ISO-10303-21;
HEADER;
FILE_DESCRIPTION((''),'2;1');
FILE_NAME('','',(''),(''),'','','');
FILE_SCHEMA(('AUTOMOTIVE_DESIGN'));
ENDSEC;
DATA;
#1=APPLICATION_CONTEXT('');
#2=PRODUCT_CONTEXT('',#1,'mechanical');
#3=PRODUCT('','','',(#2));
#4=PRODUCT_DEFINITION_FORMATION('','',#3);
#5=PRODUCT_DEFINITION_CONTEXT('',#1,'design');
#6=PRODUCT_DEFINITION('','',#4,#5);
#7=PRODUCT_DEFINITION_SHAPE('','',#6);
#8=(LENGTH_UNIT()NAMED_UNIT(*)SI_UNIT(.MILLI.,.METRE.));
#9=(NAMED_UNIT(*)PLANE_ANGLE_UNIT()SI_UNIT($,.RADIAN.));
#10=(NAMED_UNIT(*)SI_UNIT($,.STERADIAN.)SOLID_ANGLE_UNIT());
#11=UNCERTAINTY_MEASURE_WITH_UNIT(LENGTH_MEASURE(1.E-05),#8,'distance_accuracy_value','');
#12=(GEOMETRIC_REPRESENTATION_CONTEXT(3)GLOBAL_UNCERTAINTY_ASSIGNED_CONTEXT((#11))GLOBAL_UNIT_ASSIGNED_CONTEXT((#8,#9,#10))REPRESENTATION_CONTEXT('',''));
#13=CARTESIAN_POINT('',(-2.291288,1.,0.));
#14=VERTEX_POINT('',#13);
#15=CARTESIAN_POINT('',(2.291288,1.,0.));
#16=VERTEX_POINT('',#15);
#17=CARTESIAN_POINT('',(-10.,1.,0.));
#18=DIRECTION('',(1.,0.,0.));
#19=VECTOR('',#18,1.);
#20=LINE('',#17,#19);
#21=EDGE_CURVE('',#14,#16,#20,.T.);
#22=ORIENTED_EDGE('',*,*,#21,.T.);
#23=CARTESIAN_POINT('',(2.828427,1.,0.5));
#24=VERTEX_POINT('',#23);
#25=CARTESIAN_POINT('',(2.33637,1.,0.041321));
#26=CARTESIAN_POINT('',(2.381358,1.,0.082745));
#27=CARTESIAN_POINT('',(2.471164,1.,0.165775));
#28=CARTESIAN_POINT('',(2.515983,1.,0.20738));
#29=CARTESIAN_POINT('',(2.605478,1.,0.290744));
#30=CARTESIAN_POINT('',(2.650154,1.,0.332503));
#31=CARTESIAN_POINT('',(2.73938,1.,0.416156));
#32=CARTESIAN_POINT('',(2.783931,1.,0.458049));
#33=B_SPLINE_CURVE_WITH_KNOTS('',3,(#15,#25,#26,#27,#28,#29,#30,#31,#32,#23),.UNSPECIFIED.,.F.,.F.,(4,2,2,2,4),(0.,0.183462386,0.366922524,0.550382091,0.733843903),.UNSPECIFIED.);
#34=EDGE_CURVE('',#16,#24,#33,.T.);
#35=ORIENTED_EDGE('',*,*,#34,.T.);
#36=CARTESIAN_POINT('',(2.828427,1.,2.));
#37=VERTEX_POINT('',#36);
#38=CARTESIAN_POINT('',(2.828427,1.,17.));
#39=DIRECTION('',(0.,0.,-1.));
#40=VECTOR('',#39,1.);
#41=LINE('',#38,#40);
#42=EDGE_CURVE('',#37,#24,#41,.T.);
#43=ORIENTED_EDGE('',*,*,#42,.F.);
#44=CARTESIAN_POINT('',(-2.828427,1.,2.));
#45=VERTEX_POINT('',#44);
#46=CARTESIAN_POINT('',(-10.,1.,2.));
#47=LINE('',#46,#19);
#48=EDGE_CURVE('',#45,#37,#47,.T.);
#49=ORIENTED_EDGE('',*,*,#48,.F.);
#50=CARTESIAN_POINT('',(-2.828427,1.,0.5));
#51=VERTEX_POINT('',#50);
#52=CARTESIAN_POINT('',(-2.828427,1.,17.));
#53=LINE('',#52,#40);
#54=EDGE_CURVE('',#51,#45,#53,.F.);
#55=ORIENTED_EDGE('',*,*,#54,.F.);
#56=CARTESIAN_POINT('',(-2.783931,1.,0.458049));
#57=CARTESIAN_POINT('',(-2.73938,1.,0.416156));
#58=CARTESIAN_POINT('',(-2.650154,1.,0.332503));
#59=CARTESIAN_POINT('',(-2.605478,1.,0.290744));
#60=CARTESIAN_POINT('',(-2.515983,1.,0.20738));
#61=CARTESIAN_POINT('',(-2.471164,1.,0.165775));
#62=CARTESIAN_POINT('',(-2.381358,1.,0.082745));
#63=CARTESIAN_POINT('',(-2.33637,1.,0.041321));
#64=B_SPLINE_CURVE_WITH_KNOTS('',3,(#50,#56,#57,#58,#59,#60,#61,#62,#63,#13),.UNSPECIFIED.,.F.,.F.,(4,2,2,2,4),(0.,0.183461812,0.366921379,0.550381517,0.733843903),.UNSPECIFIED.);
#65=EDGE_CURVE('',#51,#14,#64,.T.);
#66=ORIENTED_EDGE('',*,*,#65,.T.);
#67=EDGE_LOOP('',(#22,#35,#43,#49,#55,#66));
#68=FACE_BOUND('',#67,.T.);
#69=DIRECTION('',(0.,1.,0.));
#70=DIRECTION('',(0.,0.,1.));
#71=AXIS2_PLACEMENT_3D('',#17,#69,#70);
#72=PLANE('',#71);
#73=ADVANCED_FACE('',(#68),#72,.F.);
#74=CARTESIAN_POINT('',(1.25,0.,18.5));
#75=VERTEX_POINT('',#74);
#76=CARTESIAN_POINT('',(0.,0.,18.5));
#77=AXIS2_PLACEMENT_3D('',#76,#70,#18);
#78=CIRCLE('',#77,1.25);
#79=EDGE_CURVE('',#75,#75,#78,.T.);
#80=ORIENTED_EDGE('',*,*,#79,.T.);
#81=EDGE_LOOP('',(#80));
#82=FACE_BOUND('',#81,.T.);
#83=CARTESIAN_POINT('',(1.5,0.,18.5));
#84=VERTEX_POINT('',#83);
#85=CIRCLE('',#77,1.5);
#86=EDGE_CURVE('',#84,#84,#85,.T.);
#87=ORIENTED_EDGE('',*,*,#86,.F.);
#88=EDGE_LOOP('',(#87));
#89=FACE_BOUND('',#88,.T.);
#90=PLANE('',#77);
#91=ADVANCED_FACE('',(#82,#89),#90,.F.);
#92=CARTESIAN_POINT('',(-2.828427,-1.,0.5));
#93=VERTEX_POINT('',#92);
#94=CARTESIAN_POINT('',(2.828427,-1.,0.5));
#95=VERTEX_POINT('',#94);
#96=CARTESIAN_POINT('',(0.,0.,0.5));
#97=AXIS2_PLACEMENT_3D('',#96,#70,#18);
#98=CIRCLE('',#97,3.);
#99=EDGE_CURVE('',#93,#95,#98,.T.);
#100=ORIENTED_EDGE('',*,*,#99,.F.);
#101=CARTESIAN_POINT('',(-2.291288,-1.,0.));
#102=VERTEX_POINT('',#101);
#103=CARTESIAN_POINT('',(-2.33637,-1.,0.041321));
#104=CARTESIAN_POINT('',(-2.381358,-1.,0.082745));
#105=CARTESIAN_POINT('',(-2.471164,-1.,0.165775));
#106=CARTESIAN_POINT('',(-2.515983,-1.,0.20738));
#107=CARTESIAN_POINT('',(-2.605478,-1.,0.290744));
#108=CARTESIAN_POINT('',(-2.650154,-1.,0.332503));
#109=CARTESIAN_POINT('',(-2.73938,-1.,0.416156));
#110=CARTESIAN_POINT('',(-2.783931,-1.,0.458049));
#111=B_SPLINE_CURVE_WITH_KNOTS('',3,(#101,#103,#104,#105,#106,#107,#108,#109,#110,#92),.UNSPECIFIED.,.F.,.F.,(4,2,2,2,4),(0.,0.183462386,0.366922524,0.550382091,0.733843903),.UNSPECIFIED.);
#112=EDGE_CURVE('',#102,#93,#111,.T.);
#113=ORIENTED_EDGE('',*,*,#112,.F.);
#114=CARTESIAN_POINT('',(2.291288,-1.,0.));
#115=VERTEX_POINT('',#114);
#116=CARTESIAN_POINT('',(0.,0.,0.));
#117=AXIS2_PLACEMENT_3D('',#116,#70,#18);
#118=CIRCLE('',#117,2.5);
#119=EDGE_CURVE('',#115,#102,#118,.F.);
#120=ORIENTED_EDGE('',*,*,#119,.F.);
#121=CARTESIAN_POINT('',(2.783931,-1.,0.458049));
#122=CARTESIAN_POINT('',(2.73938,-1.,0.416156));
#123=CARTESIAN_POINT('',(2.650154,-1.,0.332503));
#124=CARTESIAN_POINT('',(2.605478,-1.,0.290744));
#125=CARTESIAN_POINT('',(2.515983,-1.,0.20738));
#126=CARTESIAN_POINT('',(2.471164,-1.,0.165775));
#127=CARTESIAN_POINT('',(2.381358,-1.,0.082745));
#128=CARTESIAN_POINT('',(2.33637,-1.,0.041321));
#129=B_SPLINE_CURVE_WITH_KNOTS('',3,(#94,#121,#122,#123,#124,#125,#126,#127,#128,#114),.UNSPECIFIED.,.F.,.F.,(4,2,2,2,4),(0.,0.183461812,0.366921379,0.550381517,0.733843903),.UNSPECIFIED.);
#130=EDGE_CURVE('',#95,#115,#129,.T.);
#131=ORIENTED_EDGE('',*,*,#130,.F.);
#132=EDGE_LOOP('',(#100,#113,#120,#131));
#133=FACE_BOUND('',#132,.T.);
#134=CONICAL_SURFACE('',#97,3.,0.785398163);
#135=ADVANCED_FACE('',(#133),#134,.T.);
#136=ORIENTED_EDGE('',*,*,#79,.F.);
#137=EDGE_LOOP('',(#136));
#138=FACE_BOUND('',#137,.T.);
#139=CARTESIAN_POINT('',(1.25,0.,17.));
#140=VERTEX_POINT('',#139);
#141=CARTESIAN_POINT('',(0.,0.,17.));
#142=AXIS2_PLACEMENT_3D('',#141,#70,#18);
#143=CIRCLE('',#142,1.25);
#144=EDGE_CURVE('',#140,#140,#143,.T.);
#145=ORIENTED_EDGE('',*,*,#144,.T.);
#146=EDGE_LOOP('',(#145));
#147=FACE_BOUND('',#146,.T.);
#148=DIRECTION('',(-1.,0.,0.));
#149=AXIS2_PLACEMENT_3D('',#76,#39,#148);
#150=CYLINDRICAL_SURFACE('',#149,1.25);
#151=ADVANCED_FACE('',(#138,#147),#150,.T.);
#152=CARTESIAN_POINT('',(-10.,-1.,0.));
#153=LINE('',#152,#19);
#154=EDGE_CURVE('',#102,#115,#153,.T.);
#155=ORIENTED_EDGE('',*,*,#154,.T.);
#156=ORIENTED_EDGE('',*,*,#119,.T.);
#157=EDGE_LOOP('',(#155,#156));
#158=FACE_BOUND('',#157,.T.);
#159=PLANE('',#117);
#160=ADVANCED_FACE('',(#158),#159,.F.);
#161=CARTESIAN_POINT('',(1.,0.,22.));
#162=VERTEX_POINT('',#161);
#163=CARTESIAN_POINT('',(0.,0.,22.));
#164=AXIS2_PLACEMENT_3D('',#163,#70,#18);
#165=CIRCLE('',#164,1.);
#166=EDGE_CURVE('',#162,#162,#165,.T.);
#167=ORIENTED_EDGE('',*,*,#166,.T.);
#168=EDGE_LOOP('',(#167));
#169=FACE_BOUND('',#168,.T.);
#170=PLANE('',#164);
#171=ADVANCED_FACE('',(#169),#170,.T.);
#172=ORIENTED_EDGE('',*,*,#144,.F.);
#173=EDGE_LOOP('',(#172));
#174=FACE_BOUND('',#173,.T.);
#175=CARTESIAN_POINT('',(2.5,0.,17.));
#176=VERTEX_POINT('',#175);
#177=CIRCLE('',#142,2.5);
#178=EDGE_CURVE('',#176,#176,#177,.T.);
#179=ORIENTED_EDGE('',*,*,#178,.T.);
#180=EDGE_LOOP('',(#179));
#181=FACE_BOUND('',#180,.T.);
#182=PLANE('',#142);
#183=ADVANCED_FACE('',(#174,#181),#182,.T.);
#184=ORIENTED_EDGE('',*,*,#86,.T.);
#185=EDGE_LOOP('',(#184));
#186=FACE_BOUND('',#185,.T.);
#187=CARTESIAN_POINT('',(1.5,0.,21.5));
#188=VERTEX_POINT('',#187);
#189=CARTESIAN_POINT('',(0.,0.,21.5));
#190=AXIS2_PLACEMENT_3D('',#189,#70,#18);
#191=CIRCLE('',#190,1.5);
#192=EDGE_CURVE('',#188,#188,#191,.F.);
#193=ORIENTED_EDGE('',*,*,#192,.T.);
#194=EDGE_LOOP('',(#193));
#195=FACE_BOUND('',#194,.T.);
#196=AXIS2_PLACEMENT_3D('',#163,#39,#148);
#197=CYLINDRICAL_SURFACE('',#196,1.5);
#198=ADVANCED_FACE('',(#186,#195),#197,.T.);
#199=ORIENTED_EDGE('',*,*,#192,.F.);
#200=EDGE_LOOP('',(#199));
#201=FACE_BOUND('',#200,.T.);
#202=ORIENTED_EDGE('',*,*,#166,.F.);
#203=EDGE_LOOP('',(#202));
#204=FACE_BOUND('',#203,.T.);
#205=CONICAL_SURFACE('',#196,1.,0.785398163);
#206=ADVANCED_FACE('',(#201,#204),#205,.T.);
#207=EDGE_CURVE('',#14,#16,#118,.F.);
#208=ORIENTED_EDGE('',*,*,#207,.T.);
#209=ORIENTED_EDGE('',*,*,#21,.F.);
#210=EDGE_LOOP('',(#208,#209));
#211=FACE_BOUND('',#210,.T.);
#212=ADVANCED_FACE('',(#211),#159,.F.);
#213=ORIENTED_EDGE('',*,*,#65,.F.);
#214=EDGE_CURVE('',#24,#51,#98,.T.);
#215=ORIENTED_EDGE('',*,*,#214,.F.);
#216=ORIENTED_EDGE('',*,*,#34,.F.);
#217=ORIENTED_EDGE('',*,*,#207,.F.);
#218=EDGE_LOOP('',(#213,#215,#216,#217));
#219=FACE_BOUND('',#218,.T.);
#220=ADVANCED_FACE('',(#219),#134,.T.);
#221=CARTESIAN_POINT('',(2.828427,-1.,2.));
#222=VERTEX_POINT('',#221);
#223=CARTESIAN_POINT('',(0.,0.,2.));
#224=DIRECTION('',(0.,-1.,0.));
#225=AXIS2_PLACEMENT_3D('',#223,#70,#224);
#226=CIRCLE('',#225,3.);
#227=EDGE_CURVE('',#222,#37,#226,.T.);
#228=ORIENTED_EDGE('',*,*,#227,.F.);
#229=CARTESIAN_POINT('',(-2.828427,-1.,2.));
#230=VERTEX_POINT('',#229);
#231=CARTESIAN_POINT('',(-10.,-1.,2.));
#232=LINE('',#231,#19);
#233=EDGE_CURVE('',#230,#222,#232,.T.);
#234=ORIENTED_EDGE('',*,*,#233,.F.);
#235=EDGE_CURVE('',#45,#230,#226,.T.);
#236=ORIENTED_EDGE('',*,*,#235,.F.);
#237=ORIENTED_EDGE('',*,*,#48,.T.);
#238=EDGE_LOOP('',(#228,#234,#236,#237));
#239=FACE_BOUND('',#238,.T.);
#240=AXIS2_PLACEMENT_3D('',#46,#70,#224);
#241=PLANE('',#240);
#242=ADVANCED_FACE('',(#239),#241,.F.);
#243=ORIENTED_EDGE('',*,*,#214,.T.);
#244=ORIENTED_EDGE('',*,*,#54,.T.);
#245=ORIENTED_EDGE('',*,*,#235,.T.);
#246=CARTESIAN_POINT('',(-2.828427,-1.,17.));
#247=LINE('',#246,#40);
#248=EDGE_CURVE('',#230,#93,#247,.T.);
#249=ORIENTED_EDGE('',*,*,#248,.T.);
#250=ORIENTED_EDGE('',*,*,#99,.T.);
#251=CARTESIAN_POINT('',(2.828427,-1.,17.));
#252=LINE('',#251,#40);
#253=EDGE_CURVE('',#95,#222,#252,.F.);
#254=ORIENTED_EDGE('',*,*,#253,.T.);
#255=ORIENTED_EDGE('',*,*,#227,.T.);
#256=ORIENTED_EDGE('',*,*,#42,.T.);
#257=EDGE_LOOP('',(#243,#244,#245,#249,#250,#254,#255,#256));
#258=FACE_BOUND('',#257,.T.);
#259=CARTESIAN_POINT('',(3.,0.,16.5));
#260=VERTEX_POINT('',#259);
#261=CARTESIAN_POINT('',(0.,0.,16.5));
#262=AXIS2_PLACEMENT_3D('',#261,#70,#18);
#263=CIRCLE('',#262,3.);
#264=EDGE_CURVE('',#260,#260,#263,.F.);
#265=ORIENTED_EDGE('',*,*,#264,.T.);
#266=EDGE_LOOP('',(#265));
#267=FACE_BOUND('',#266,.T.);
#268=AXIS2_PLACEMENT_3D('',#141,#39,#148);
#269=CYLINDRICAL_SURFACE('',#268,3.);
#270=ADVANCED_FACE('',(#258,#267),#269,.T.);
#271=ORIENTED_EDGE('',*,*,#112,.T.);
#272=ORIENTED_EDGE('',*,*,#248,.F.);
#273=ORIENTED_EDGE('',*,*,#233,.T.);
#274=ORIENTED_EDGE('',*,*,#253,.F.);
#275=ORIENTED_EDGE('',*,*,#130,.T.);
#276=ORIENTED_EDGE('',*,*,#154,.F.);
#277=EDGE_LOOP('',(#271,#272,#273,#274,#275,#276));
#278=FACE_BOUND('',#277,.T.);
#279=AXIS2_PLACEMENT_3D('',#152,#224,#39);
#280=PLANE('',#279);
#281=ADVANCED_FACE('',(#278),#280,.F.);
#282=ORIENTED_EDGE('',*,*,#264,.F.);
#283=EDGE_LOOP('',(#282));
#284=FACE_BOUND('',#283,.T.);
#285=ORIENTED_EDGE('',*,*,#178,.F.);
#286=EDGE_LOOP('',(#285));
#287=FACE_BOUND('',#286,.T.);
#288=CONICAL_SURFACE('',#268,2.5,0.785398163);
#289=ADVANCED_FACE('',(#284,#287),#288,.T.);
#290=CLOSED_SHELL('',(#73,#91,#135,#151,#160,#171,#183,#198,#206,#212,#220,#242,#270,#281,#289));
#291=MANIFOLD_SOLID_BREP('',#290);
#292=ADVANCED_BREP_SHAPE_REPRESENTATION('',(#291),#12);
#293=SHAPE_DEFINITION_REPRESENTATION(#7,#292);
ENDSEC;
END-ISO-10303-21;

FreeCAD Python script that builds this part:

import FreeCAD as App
import Part
import Sketcher

V = App.Vector


def edges_at(feature, points):
    """Names of the edges that pass closest to the given points."""
    edges = feature.Shape.Edges
    near = lambda p: min(range(len(edges)), key=lambda i: edges[i].distToShape(Part.Vertex(*p))[0])
    return sorted({f"Edge{near(p) + 1}" for p in points})


def add_polygon(sketch, points):
    """Adds a closed chain of lines whose ends are joined by coincident constraints."""
    first, n = sketch.GeometryCount, len(points)
    for a, b in zip(points, points[1:] + points[:1]):
        sketch.addGeometry(Part.LineSegment(App.Vector(*a, 0), App.Vector(*b, 0)), False)
    for i in range(n):
        sketch.addConstraint(Sketcher.Constraint("Coincident", first + i, 2, first + (i + 1) % n, 1))

doc = App.newDocument("Part")
params = doc.addObject("Spreadsheet::Sheet", "Params")
for row, (alias, value) in enumerate([
    ("sketch1_diameter", "6 mm"),
    ("pad1_length", "17 mm"),
    ("sketch2_diameter", "3 mm"),
    ("pad2_length", "5 mm"),
    ("chamfer_size", "0.5 mm"),
    ("sketch3_diameter", "3 mm"),
    ("sketch3_diameter2", "2.5 mm"),
    ("pocket1_length", "1.5 mm"),
    ("sketch4_width", "2 mm"),
    ("pocket2_length", "20 mm"),
    ("chamfer2_size", "0.5 mm"),
], start=1):
    params.set(f"A{row}", alias)
    params.set(f"B{row}", "=" + value)
    params.setAlias(f"B{row}", alias)

body = doc.addObject("PartDesign::Body", "Body")

# Sketch on XY plane
sketch1 = body.newObject("Sketcher::SketchObject", "Sketch")
sketch1.AttachmentSupport = (doc.getObject("XY_Plane"), [""])
sketch1.MapMode = "FlatFace"
sketch1.addGeometry(Part.Circle(V(0, 0, 0), V(0, 0, 1), 3), False)
sketch1.addConstraint([
    Sketcher.Constraint("Coincident", 0, 3, -1, 1),
    Sketcher.Constraint("Diameter", 0, 6.0),
])
sketch1.setExpression("Constraints[1]", "Params.sketch1_diameter")
pad1 = body.newObject("PartDesign::Pad", "Pad")
pad1.Profile = sketch1
pad1.setExpression("Length", "Params.pad1_length")

# Sketch on XY plane
sketch2 = body.newObject("Sketcher::SketchObject", "Sketch001")
sketch2.AttachmentSupport = (doc.getObject("XY_Plane"), [""])
sketch2.MapMode = "FlatFace"
sketch2.AttachmentOffset = App.Placement(V(0, 0, 17), App.Rotation())
sketch2.addGeometry(Part.Circle(V(0, 0, 0), V(0, 0, 1), 1.5), False)
sketch2.addConstraint([
    Sketcher.Constraint("Coincident", 0, 3, -1, 1),
    Sketcher.Constraint("Diameter", 0, 3.0),
])
sketch2.setExpression("Constraints[1]", "Params.sketch2_diameter")
pad2 = body.newObject("PartDesign::Pad", "Pad001")
pad2.Profile = sketch2
pad2.setExpression("Length", "Params.pad2_length")
doc.recompute()

chamfer = body.newObject("PartDesign::Chamfer", "Chamfer")
chamfer.Base = (pad2, edges_at(pad2, [(-1.5, 0, 22)]))
chamfer.setExpression("Size", "Params.chamfer_size")

# Sketch on XY plane
sketch3 = body.newObject("Sketcher::SketchObject", "Sketch002")
sketch3.AttachmentSupport = (doc.getObject("XY_Plane"), [""])
sketch3.MapMode = "FlatFace"
sketch3.AttachmentOffset = App.Placement(V(0, 0, 17), App.Rotation())
sketch3.addGeometry([
    Part.Circle(V(0, 0, 0), V(0, 0, 1), 1.5),
    Part.Circle(V(0, 0, 0), V(0, 0, 1), 1.2),
], False)
sketch3.addConstraint([
    Sketcher.Constraint("Coincident", 0, 3, -1, 1),
    Sketcher.Constraint("Coincident", 1, 3, -1, 1),
    Sketcher.Constraint("Diameter", 0, 3.0),
    Sketcher.Constraint("Diameter", 1, 2.5),
])
sketch3.setExpression("Constraints[2]", "Params.sketch3_diameter")
sketch3.setExpression("Constraints[3]", "Params.sketch3_diameter2")
pocket1 = body.newObject("PartDesign::Pocket", "Pocket")
pocket1.Profile = sketch3
pocket1.setExpression("Length", "Params.pocket1_length")
pocket1.Reversed = True

# Sketch on YZ plane
sketch4 = body.newObject("Sketcher::SketchObject", "Sketch003")
sketch4.AttachmentSupport = (doc.getObject("YZ_Plane"), [""])
sketch4.MapMode = "FlatFace"
add_polygon(sketch4, [(1, 2), (-1, 2), (-1, 0), (1, 0)])  # lines 0-3
sketch4.addConstraint([
    Sketcher.Constraint("Horizontal", 0),
    Sketcher.Constraint("Vertical", 1),
    Sketcher.Constraint("Horizontal", 2),
    Sketcher.Constraint("Vertical", 3),
    Sketcher.Constraint("Symmetric", 1, 2, 2, 2, -1, 1),
    Sketcher.Constraint("Equal", 2, 1),
    Sketcher.Constraint("DistanceX", 0, 2, 0, 1, 2.0),
])
sketch4.setExpression("Constraints[10]", "Params.sketch4_width")
pocket2 = body.newObject("PartDesign::Pocket", "Pocket001")
pocket2.Profile = sketch4
pocket2.setExpression("Length", "Params.pocket2_length")
pocket2.Midplane = True
doc.recompute()

chamfer2 = body.newObject("PartDesign::Chamfer", "Chamfer001")
chamfer2.Base = (pocket2, edges_at(pocket2, [(0, 3, 0), (0, -3, 0), (-3, 0, 17)]))
chamfer2.setExpression("Size", "Params.chamfer2_size")

doc.recompute()
